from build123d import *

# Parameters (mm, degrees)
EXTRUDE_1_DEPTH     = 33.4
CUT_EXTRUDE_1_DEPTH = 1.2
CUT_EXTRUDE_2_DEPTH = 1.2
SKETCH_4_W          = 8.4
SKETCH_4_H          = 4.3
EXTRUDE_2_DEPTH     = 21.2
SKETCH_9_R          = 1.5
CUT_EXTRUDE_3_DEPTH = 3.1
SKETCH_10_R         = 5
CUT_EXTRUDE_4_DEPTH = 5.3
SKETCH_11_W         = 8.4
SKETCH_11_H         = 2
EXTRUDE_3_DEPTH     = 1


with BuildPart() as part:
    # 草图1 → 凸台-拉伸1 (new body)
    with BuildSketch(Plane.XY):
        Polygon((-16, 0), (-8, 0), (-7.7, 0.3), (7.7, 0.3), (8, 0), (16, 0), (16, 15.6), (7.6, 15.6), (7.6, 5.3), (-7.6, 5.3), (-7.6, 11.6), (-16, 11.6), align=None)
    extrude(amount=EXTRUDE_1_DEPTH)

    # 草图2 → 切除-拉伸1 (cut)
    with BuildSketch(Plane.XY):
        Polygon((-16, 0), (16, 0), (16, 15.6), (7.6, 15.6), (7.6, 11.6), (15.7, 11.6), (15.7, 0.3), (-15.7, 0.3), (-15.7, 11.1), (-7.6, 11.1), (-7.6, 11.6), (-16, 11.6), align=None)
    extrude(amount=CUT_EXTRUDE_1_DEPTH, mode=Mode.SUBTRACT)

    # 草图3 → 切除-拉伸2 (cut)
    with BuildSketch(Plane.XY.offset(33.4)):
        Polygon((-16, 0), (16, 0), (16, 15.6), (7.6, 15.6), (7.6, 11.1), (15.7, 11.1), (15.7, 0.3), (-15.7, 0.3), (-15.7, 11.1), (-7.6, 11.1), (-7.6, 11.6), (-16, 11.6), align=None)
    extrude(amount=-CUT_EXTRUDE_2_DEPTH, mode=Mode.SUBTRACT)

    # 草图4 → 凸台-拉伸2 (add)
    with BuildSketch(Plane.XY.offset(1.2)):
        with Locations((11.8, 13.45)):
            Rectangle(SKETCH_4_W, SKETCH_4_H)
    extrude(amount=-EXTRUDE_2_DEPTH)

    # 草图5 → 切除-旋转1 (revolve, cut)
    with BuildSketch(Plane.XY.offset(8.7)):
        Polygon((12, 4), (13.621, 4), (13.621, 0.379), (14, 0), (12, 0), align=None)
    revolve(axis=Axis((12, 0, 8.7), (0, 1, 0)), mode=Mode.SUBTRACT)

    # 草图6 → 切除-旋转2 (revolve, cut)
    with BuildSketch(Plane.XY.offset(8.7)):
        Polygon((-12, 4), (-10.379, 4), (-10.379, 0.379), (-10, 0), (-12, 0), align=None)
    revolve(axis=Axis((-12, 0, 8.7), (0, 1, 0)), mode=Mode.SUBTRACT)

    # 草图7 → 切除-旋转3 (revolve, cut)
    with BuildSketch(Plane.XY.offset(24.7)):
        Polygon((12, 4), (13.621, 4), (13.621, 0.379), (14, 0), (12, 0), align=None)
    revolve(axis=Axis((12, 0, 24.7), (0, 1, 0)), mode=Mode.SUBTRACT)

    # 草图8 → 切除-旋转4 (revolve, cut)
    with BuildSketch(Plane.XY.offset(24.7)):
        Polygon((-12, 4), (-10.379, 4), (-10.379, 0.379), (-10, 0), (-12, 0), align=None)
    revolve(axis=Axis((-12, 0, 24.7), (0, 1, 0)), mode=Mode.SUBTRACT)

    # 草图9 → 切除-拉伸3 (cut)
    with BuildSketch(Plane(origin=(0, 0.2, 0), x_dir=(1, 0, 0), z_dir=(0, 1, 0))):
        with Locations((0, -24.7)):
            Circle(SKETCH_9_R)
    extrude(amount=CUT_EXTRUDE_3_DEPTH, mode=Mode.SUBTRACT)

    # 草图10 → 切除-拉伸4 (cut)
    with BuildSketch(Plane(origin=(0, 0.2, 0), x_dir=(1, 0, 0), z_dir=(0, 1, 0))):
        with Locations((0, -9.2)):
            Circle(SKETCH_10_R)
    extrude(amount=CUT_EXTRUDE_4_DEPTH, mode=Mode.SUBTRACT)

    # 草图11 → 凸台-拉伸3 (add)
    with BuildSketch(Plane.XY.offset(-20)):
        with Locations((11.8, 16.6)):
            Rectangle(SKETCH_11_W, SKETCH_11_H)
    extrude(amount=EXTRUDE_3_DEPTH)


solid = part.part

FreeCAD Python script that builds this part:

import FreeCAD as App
import Part
import Sketcher
from FreeCAD import Vector
Q = App.Units.Quantity

doc = App.newDocument("Part")
body = doc.addObject("PartDesign::Body", "Body")

# Sketch on XY plane
sketch1 = doc.addObject("Sketcher::SketchObject", "Sketch")
body.addObject(sketch1)
sketch1.AttachmentSupport = (doc.XY_Plane, [""])
sketch1.MapMode = "FlatFace"
sketch1.addGeometry([
    Part.LineSegment(Vector(-16, 0, 0), Vector(-8, 0, 0)),  # 0
    Part.LineSegment(Vector(-8, 0, 0), Vector(-7.7, 0.3, 0)),  # 1
    Part.LineSegment(Vector(-7.7, 0.3, 0), Vector(7.7, 0.3, 0)),  # 2
    Part.LineSegment(Vector(7.7, 0.3, 0), Vector(8, 0, 0)),  # 3
    Part.LineSegment(Vector(8, 0, 0), Vector(16, 0, 0)),  # 4
    Part.LineSegment(Vector(16, 0, 0), Vector(16, 15.6, 0)),  # 5
    Part.LineSegment(Vector(16, 15.6, 0), Vector(7.6, 15.6, 0)),  # 6
    Part.LineSegment(Vector(7.6, 15.6, 0), Vector(7.6, 5.3, 0)),  # 7
    Part.LineSegment(Vector(7.6, 5.3, 0), Vector(-7.6, 5.3, 0)),  # 8
    Part.LineSegment(Vector(-7.6, 5.3, 0), Vector(-7.6, 11.6, 0)),  # 9
    Part.LineSegment(Vector(-7.6, 11.6, 0), Vector(-16, 11.6, 0)),  # 10
    Part.LineSegment(Vector(-16, 11.6, 0), Vector(-16, 0, 0)),  # 11
], False)
sketch1.addConstraint([
    Sketcher.Constraint("Coincident", 0, 2, 1, 1),
    Sketcher.Constraint("Coincident", 1, 2, 2, 1),
    Sketcher.Constraint("Coincident", 2, 2, 3, 1),
    Sketcher.Constraint("Coincident", 3, 2, 4, 1),
    Sketcher.Constraint("Coincident", 4, 2, 5, 1),
    Sketcher.Constraint("Coincident", 5, 2, 6, 1),
    Sketcher.Constraint("Coincident", 6, 2, 7, 1),
    Sketcher.Constraint("Coincident", 7, 2, 8, 1),
    Sketcher.Constraint("Coincident", 8, 2, 9, 1),
    Sketcher.Constraint("Coincident", 9, 2, 10, 1),
    Sketcher.Constraint("Coincident", 10, 2, 11, 1),
    Sketcher.Constraint("Coincident", 11, 2, 0, 1),
    Sketcher.Constraint("Horizontal", 0),
    Sketcher.Constraint("Horizontal", 2),
    Sketcher.Constraint("Horizontal", 4),
    Sketcher.Constraint("Vertical", 5),
    Sketcher.Constraint("Horizontal", 6),
    Sketcher.Constraint("Vertical", 7),
    Sketcher.Constraint("Horizontal", 8),
    Sketcher.Constraint("Vertical", 9),
    Sketcher.Constraint("Horizontal", 10),
    Sketcher.Constraint("Vertical", 11),
    Sketcher.Constraint("Symmetric", 0, 2, 3, 2, -1, 1),
    Sketcher.Constraint("Symmetric", 4, 2, 11, 2, -2),
    Sketcher.Constraint("Perpendicular", 1, 3),
    Sketcher.Constraint("Equal", 6, 10),
    Sketcher.Constraint("Equal", 1, 3),
    Sketcher.Constraint("DistanceX", 0, 1, 0, 2, Q("8 mm")),
    Sketcher.Constraint("DistanceX", 2, 1, 2, 2, Q("15.4 mm")),
    Sketcher.Constraint("DistanceX", 6, 2, 6, 1, Q("8.4 mm")),
    Sketcher.Constraint("DistanceX", 8, 2, 8, 1, Q("15.2 mm")),
    Sketcher.Constraint("DistanceY", 5, 1, 5, 2, Q("15.6 mm")),
    Sketcher.Constraint("DistanceY", 7, 2, 7, 1, Q("10.3 mm")),
    Sketcher.Constraint("DistanceY", 9, 1, 9, 2, Q("6.3 mm")),
])
pad1 = doc.addObject("PartDesign::Pad", "Pad")
body.addObject(pad1)
pad1.Profile = sketch1
pad1.Length = 33.4

# Sketch on XY plane
sketch2 = doc.addObject("Sketcher::SketchObject", "Sketch001")
body.addObject(sketch2)
sketch2.AttachmentSupport = (doc.XY_Plane, [""])
sketch2.MapMode = "FlatFace"
sketch2.addGeometry([
    Part.LineSegment(Vector(-16, 0, 0), Vector(16, 0, 0)),  # 0
    Part.LineSegment(Vector(16, 0, 0), Vector(16, 15.6, 0)),  # 1
    Part.LineSegment(Vector(16, 15.6, 0), Vector(7.6, 15.6, 0)),  # 2
    Part.LineSegment(Vector(7.6, 15.6, 0), Vector(7.6, 11.6, 0)),  # 3
    Part.LineSegment(Vector(7.6, 11.6, 0), Vector(15.7, 11.6, 0)),  # 4
    Part.LineSegment(Vector(15.7, 11.6, 0), Vector(15.7, 0.3, 0)),  # 5
    Part.LineSegment(Vector(15.7, 0.3, 0), Vector(-15.7, 0.3, 0)),  # 6
    Part.LineSegment(Vector(-15.7, 0.3, 0), Vector(-15.7, 11.1, 0)),  # 7
    Part.LineSegment(Vector(-15.7, 11.1, 0), Vector(-7.6, 11.1, 0)),  # 8
    Part.LineSegment(Vector(-7.6, 11.1, 0), Vector(-7.6, 11.6, 0)),  # 9
    Part.LineSegment(Vector(-7.6, 11.6, 0), Vector(-16, 11.6, 0)),  # 10
    Part.LineSegment(Vector(-16, 11.6, 0), Vector(-16, 0, 0)),  # 11
], False)
sketch2.addConstraint([
    Sketcher.Constraint("Coincident", 0, 2, 1, 1),
    Sketcher.Constraint("Coincident", 1, 2, 2, 1),
    Sketcher.Constraint("Coincident", 2, 2, 3, 1),
    Sketcher.Constraint("Coincident", 3, 2, 4, 1),
    Sketcher.Constraint("Coincident", 4, 2, 5, 1),
    Sketcher.Constraint("Coincident", 5, 2, 6, 1),
    Sketcher.Constraint("Coincident", 6, 2, 7, 1),
    Sketcher.Constraint("Coincident", 7, 2, 8, 1),
    Sketcher.Constraint("Coincident", 8, 2, 9, 1),
    Sketcher.Constraint("Coincident", 9, 2, 10, 1),
    Sketcher.Constraint("Coincident", 10, 2, 11, 1),
    Sketcher.Constraint("Coincident", 11, 2, 0, 1),
    Sketcher.Constraint("Horizontal", 0),
    Sketcher.Constraint("Vertical", 1),
    Sketcher.Constraint("Horizontal", 2),
    Sketcher.Constraint("Vertical", 3),
    Sketcher.Constraint("Horizontal", 4),
    Sketcher.Constraint("Vertical", 5),
    Sketcher.Constraint("Horizontal", 6),
    Sketcher.Constraint("Vertical", 7),
    Sketcher.Constraint("Horizontal", 8),
    Sketcher.Constraint("Vertical", 9),
    Sketcher.Constraint("Horizontal", 10),
    Sketcher.Constraint("Vertical", 11),
    Sketcher.Constraint("Symmetric", 0, 2, 11, 2, -1, 1),
    Sketcher.Constraint("Symmetric", 3, 2, 9, 2, -2),
    Sketcher.Constraint("Equal", 4, 8),
    Sketcher.Constraint("DistanceX", 0, 1, 0, 2, Q("32 mm")),
    Sketcher.Constraint("DistanceY", 3, 2, 3, 1, Q("4 mm")),
    Sketcher.Constraint("DistanceX", 2, 2, 2, 1, Q("8.4 mm")),
    Sketcher.Constraint("DistanceX", 4, 1, 4, 2, Q("8.1 mm")),
    Sketcher.Constraint("DistanceY", 1, 1, 1, 2, Q("15.6 mm")),
    Sketcher.Constraint("DistanceY", 5, 2, 5, 1, Q("11.3 mm")),
    Sketcher.Constraint("DistanceY", 7, 1, 7, 2, Q("10.8 mm")),
])
pocket1 = doc.addObject("PartDesign::Pocket", "Pocket")
body.addObject(pocket1)
pocket1.Profile = sketch2
pocket1.Length = 1.2
pocket1.Reversed = True

# Sketch on XY plane
sketch3 = doc.addObject("Sketcher::SketchObject", "Sketch002")
body.addObject(sketch3)
sketch3.AttachmentSupport = (doc.XY_Plane, [""])
sketch3.MapMode = "FlatFace"
sketch3.AttachmentOffset = App.Placement(Vector(0, 0, 33.4), App.Rotation())
sketch3.addGeometry([
    Part.LineSegment(Vector(-16, 0, 0), Vector(16, 0, 0)),  # 0
    Part.LineSegment(Vector(16, 0, 0), Vector(16, 15.6, 0)),  # 1
    Part.LineSegment(Vector(16, 15.6, 0), Vector(7.6, 15.6, 0)),  # 2
    Part.LineSegment(Vector(7.6, 15.6, 0), Vector(7.6, 11.1, 0)),  # 3
    Part.LineSegment(Vector(7.6, 11.1, 0), Vector(15.7, 11.1, 0)),  # 4
    Part.LineSegment(Vector(15.7, 11.1, 0), Vector(15.7, 0.3, 0)),  # 5
    Part.LineSegment(Vector(15.7, 0.3, 0), Vector(-15.7, 0.3, 0)),  # 6
    Part.LineSegment(Vector(-15.7, 0.3, 0), Vector(-15.7, 11.1, 0)),  # 7
    Part.LineSegment(Vector(-15.7, 11.1, 0), Vector(-7.6, 11.1, 0)),  # 8
    Part.LineSegment(Vector(-7.6, 11.1, 0), Vector(-7.6, 11.6, 0)),  # 9
    Part.LineSegment(Vector(-7.6, 11.6, 0), Vector(-16, 11.6, 0)),  # 10
    Part.LineSegment(Vector(-16, 11.6, 0), Vector(-16, 0, 0)),  # 11
], False)
sketch3.addConstraint([
    Sketcher.Constraint("Coincident", 0, 2, 1, 1),
    Sketcher.Constraint("Coincident", 1, 2, 2, 1),
    Sketcher.Constraint("Coincident", 2, 2, 3, 1),
    Sketcher.Constraint("Coincident", 3, 2, 4, 1),
    Sketcher.Constraint("Coincident", 4, 2, 5, 1),
    Sketcher.Constraint("Coincident", 5, 2, 6, 1),
    Sketcher.Constraint("Coincident", 6, 2, 7, 1),
    Sketcher.Constraint("Coincident", 7, 2, 8, 1),
    Sketcher.Constraint("Coincident", 8, 2, 9, 1),
    Sketcher.Constraint("Coincident", 9, 2, 10, 1),
    Sketcher.Constraint("Coincident", 10, 2, 11, 1),
    Sketcher.Constraint("Coincident", 11, 2, 0, 1),
    Sketcher.Constraint("Horizontal", 0),
    Sketcher.Constraint("Vertical", 1),
    Sketcher.Constraint("Horizontal", 2),
    Sketcher.Constraint("Vertical", 3),
    Sketcher.Constraint("Horizontal", 4),
    Sketcher.Constraint("Vertical", 5),
    Sketcher.Constraint("Horizontal", 6),
    Sketcher.Constraint("Vertical", 7),
    Sketcher.Constraint("Horizontal", 8),
    Sketcher.Constraint("Vertical", 9),
    Sketcher.Constraint("Horizontal", 10),
    Sketcher.Constraint("Vertical", 11),
    Sketcher.Constraint("Symmetric", 0, 2, 11, 2, -1, 1),
    Sketcher.Constraint("Symmetric", 4, 2, 7, 2, -2),
    Sketcher.Constraint("Equal", 4, 8),
    Sketcher.Constraint("DistanceX", 0, 1, 0, 2, Q("32 mm")),
    Sketcher.Constraint("DistanceX", 2, 2, 2, 1, Q("8.4 mm")),
    Sketcher.Constraint("DistanceX", 4, 1, 4, 2, Q("8.1 mm")),
    Sketcher.Constraint("DistanceY", 1, 1, 1, 2, Q("15.6 mm")),
    Sketcher.Constraint("DistanceY", 3, 2, 3, 1, Q("4.5 mm")),
    Sketcher.Constraint("DistanceY", 5, 2, 5, 1, Q("10.8 mm")),
    Sketcher.Constraint("DistanceY", 9, 1, 9, 2, Q("0.5 mm")),
])
pocket2 = doc.addObject("PartDesign::Pocket", "Pocket001")
body.addObject(pocket2)
pocket2.Profile = sketch3
pocket2.Length = 1.2

# Sketch on XY plane
sketch4 = doc.addObject("Sketcher::SketchObject", "Sketch003")
body.addObject(sketch4)
sketch4.AttachmentSupport = (doc.XY_Plane, [""])
sketch4.MapMode = "FlatFace"
sketch4.AttachmentOffset = App.Placement(Vector(0, 0, 1.2), App.Rotation())
sketch4.addGeometry([
    Part.LineSegment(Vector(7.6, 15.6, 0), Vector(7.6, 11.3, 0)),
    Part.LineSegment(Vector(7.6, 11.3, 0), Vector(16, 11.3, 0)),
    Part.LineSegment(Vector(16, 11.3, 0), Vector(16, 15.6, 0)),
    Part.LineSegment(Vector(16, 15.6, 0), Vector(7.6, 15.6, 0)),
], False)
sketch4.addConstraint([
    Sketcher.Constraint("Coincident", 0, 2, 1, 1),
    Sketcher.Constraint("Coincident", 1, 2, 2, 1),
    Sketcher.Constraint("Coincident", 2, 2, 3, 1),
    Sketcher.Constraint("Coincident", 3, 2, 0, 1),
    Sketcher.Constraint("Vertical", 0),
    Sketcher.Constraint("Horizontal", 1),
    Sketcher.Constraint("Vertical", 2),
    Sketcher.Constraint("Horizontal", 3),
    Sketcher.Constraint("DistanceX", 1, 1, 1, 2, Q("8.4 mm")),
    Sketcher.Constraint("DistanceY", 0, 2, 0, 1, Q("4.3 mm")),
    Sketcher.Constraint("DistanceX", -1, 1, 1, 2, Q("16 mm")),
    Sketcher.Constraint("DistanceY", -1, 1, 0, 2, Q("11.3 mm")),
])
pad2 = doc.addObject("PartDesign::Pad", "Pad001")
body.addObject(pad2)
pad2.Profile = sketch4
pad2.Length = 21.2
pad2.Reversed = True

# Sketch on XY plane
sketch5 = doc.addObject("Sketcher::SketchObject", "Sketch004")
body.addObject(sketch5)
sketch5.AttachmentSupport = (doc.XY_Plane, [""])
sketch5.MapMode = "FlatFace"
sketch5.AttachmentOffset = App.Placement(Vector(0, 0, 8.7), App.Rotation())
sketch5.addGeometry([
    Part.LineSegment(Vector(13.6, 4, 0), Vector(12, 4, 0)),  # 0
    Part.LineSegment(Vector(12, 4, 0), Vector(12, 0, 0)),  # 1
    Part.LineSegment(Vector(12, 0, 0), Vector(14, 0, 0)),  # 2
    Part.LineSegment(Vector(14, 0, 0), Vector(13.6, 0.4, 0)),  # 3
    Part.LineSegment(Vector(13.6, 0.4, 0), Vector(13.6, 4, 0)),  # 4
], False)
sketch5.addGeometry(Part.LineSegment(Vector(12, 0, 0), Vector(12, 4, 0)), True)  # axis
sketch5.addConstraint([
    Sketcher.Constraint("Coincident", 0, 2, 1, 1),
    Sketcher.Constraint("Coincident", 1, 2, 2, 1),
    Sketcher.Constraint("Coincident", 2, 2, 3, 1),
    Sketcher.Constraint("Coincident", 3, 2, 4, 1),
    Sketcher.Constraint("Coincident", 4, 2, 0, 1),
    Sketcher.Constraint("Horizontal", 0),
    Sketcher.Constraint("Vertical", 1),
    Sketcher.Constraint("Horizontal", 2),
    Sketcher.Constraint("Vertical", 4),
    Sketcher.Constraint("Vertical", 5),
    Sketcher.Constraint("Coincident", 5, 1, 1, 2),
    Sketcher.Constraint("PointOnObject", 1, 2, -1),
    Sketcher.Constraint("Horizontal", 4, 2, 5, 2),
    Sketcher.Constraint("DistanceX", 2, 1, 2, 2, Q("2 mm")),
    Sketcher.Constraint("DistanceY", 1, 2, 1, 1, Q("4 mm")),
    Sketcher.Constraint("Angle", 3, Q("135 deg")),
    Sketcher.Constraint("DistanceX", -1, 1, 0, 2, Q("12 mm")),
    Sketcher.Constraint("DistanceX", 0, 2, 0, 1, Q("1.621 mm")),
])
groove = doc.addObject("PartDesign::Groove", "Groove")
body.addObject(groove)
groove.Profile = sketch5
groove.ReferenceAxis = (sketch5, ["Axis0"])
groove.Angle = 360

# Sketch on XY plane
sketch6 = doc.addObject("Sketcher::SketchObject", "Sketch005")
body.addObject(sketch6)
sketch6.AttachmentSupport = (doc.XY_Plane, [""])
sketch6.MapMode = "FlatFace"
sketch6.AttachmentOffset = App.Placement(Vector(0, 0, 8.7), App.Rotation())
sketch6.addGeometry([
    Part.LineSegment(Vector(-10.4, 4, 0), Vector(-12, 4, 0)),  # 0
    Part.LineSegment(Vector(-12, 4, 0), Vector(-12, 0, 0)),  # 1
    Part.LineSegment(Vector(-12, 0, 0), Vector(-10, 0, 0)),  # 2
    Part.LineSegment(Vector(-10, 0, 0), Vector(-10.4, 0.4, 0)),  # 3
    Part.LineSegment(Vector(-10.4, 0.4, 0), Vector(-10.4, 4, 0)),  # 4
], False)
sketch6.addGeometry(Part.LineSegment(Vector(-12, 0, 0), Vector(-12, 4, 0)), True)  # axis
sketch6.addConstraint([
    Sketcher.Constraint("Coincident", 0, 2, 1, 1),
    Sketcher.Constraint("Coincident", 1, 2, 2, 1),
    Sketcher.Constraint("Coincident", 2, 2, 3, 1),
    Sketcher.Constraint("Coincident", 3, 2, 4, 1),
    Sketcher.Constraint("Coincident", 4, 2, 0, 1),
    Sketcher.Constraint("Horizontal", 0),
    Sketcher.Constraint("Vertical", 1),
    Sketcher.Constraint("Horizontal", 2),
    Sketcher.Constraint("Vertical", 4),
    Sketcher.Constraint("Vertical", 5),
    Sketcher.Constraint("Coincident", 5, 1, 1, 2),
    Sketcher.Constraint("PointOnObject", 1, 2, -1),
    Sketcher.Constraint("Horizontal", 4, 2, 5, 2),
    Sketcher.Constraint("DistanceX", 2, 1, 2, 2, Q("2 mm")),
    Sketcher.Constraint("DistanceY", 1, 2, 1, 1, Q("4 mm")),
    Sketcher.Constraint("Angle", 3, Q("135 deg")),
    Sketcher.Constraint("DistanceX", 0, 2, -1, 1, Q("12 mm")),
    Sketcher.Constraint("DistanceX", 0, 2, 0, 1, Q("1.621 mm")),
])
groove2 = doc.addObject("PartDesign::Groove", "Groove001")
body.addObject(groove2)
groove2.Profile = sketch6
groove2.ReferenceAxis = (sketch6, ["Axis0"])
groove2.Angle = 360

# Sketch on XY plane
sketch7 = doc.addObject("Sketcher::SketchObject", "Sketch006")
body.addObject(sketch7)
sketch7.AttachmentSupport = (doc.XY_Plane, [""])
sketch7.MapMode = "FlatFace"
sketch7.AttachmentOffset = App.Placement(Vector(0, 0, 24.7), App.Rotation())
sketch7.addGeometry([
    Part.LineSegment(Vector(13.6, 4, 0), Vector(12, 4, 0)),  # 0
    Part.LineSegment(Vector(12, 4, 0), Vector(12, 0, 0)),  # 1
    Part.LineSegment(Vector(12, 0, 0), Vector(14, 0, 0)),  # 2
    Part.LineSegment(Vector(14, 0, 0), Vector(13.6, 0.4, 0)),  # 3
    Part.LineSegment(Vector(13.6, 0.4, 0), Vector(13.6, 4, 0)),  # 4
], False)
sketch7.addGeometry(Part.LineSegment(Vector(12, 0, 0), Vector(12, 4, 0)), True)  # axis
sketch7.addConstraint([
    Sketcher.Constraint("Coincident", 0, 2, 1, 1),
    Sketcher.Constraint("Coincident", 1, 2, 2, 1),
    Sketcher.Constraint("Coincident", 2, 2, 3, 1),
    Sketcher.Constraint("Coincident", 3, 2, 4, 1),
    Sketcher.Constraint("Coincident", 4, 2, 0, 1),
    Sketcher.Constraint("Horizontal", 0),
    Sketcher.Constraint("Vertical", 1),
    Sketcher.Constraint("Horizontal", 2),
    Sketcher.Constraint("Vertical", 4),
    Sketcher.Constraint("Vertical", 5),
    Sketcher.Constraint("Coincident", 5, 1, 1, 2),
    Sketcher.Constraint("PointOnObject", 1, 2, -1),
    Sketcher.Constraint("Horizontal", 4, 2, 5, 2),
    Sketcher.Constraint("DistanceX", 2, 1, 2, 2, Q("2 mm")),
    Sketcher.Constraint("DistanceY", 1, 2, 1, 1, Q("4 mm")),
    Sketcher.Constraint("Angle", 3, Q("135 deg")),
    Sketcher.Constraint("DistanceX", -1, 1, 0, 2, Q("12 mm")),
    Sketcher.Constraint("DistanceX", 0, 2, 0, 1, Q("1.621 mm")),
])
groove3 = doc.addObject("PartDesign::Groove", "Groove002")
body.addObject(groove3)
groove3.Profile = sketch7
groove3.ReferenceAxis = (sketch7, ["Axis0"])
groove3.Angle = 360

# Sketch on XY plane
sketch8 = doc.addObject("Sketcher::SketchObject", "Sketch007")
body.addObject(sketch8)
sketch8.AttachmentSupport = (doc.XY_Plane, [""])
sketch8.MapMode = "FlatFace"
sketch8.AttachmentOffset = App.Placement(Vector(0, 0, 24.7), App.Rotation())
sketch8.addGeometry([
    Part.LineSegment(Vector(-10.4, 4, 0), Vector(-12, 4, 0)),  # 0
    Part.LineSegment(Vector(-12, 4, 0), Vector(-12, 0, 0)),  # 1
    Part.LineSegment(Vector(-12, 0, 0), Vector(-10, 0, 0)),  # 2
    Part.LineSegment(Vector(-10, 0, 0), Vector(-10.4, 0.4, 0)),  # 3
    Part.LineSegment(Vector(-10.4, 0.4, 0), Vector(-10.4, 4, 0)),  # 4
], False)
sketch8.addGeometry(Part.LineSegment(Vector(-12, 0, 0), Vector(-12, 4, 0)), True)  # axis
sketch8.addConstraint([
    Sketcher.Constraint("Coincident", 0, 2, 1, 1),
    Sketcher.Constraint("Coincident", 1, 2, 2, 1),
    Sketcher.Constraint("Coincident", 2, 2, 3, 1),
    Sketcher.Constraint("Coincident", 3, 2, 4, 1),
    Sketcher.Constraint("Coincident", 4, 2, 0, 1),
    Sketcher.Constraint("Horizontal", 0),
    Sketcher.Constraint("Vertical", 1),
    Sketcher.Constraint("Horizontal", 2),
    Sketcher.Constraint("Vertical", 4),
    Sketcher.Constraint("Vertical", 5),
    Sketcher.Constraint("Coincident", 5, 1, 1, 2),
    Sketcher.Constraint("PointOnObject", 1, 2, -1),
    Sketcher.Constraint("Horizontal", 4, 2, 5, 2),
    Sketcher.Constraint("DistanceX", 2, 1, 2, 2, Q("2 mm")),
    Sketcher.Constraint("DistanceY", 1, 2, 1, 1, Q("4 mm")),
    Sketcher.Constraint("Angle", 3, Q("135 deg")),
    Sketcher.Constraint("DistanceX", 0, 2, -1, 1, Q("12 mm")),
    Sketcher.Constraint("DistanceX", 0, 2, 0, 1, Q("1.621 mm")),
])
groove4 = doc.addObject("PartDesign::Groove", "Groove003")
body.addObject(groove4)
groove4.Profile = sketch8
groove4.ReferenceAxis = (sketch8, ["Axis0"])
groove4.Angle = 360

# Sketch on XZ plane
sketch9 = doc.addObject("Sketcher::SketchObject", "Sketch008")
body.addObject(sketch9)
sketch9.AttachmentSupport = (doc.XZ_Plane, [""])
sketch9.MapMode = "FlatFace"
sketch9.AttachmentOffset = App.Placement(Vector(0, 0, -0.2), App.Rotation())
sketch9.addGeometry(Part.Circle(Vector(0, 24.7, 0), Vector(0, 0, 1), 1.5), False)
sketch9.addConstraint([
    Sketcher.Constraint("PointOnObject", 0, 3, -2),
    Sketcher.Constraint("Diameter", 0, Q("3 mm")),
    Sketcher.Constraint("DistanceY", -1, 1, 0, 3, Q("24.7 mm")),
])
pocket3 = doc.addObject("PartDesign::Pocket", "Pocket002")
body.addObject(pocket3)
pocket3.Profile = sketch9
pocket3.Length = 3.1

# Sketch on XZ plane
sketch10 = doc.addObject("Sketcher::SketchObject", "Sketch009")
body.addObject(sketch10)
sketch10.AttachmentSupport = (doc.XZ_Plane, [""])
sketch10.MapMode = "FlatFace"
sketch10.AttachmentOffset = App.Placement(Vector(0, 0, -0.2), App.Rotation())
sketch10.addGeometry(Part.Circle(Vector(0, 9, 0), Vector(0, 0, 1), 5), False)
sketch10.addConstraint([
    Sketcher.Constraint("PointOnObject", 0, 3, -2),
    Sketcher.Constraint("Diameter", 0, Q("10 mm")),
    Sketcher.Constraint("DistanceY", -1, 1, 0, 3, Q("9.2 mm")),
])
pocket4 = doc.addObject("PartDesign::Pocket", "Pocket003")
body.addObject(pocket4)
pocket4.Profile = sketch10
pocket4.Length = 5.3

# Sketch on XY plane
sketch11 = doc.addObject("Sketcher::SketchObject", "Sketch010")
body.addObject(sketch11)
sketch11.AttachmentSupport = (doc.XY_Plane, [""])
sketch11.MapMode = "FlatFace"
sketch11.AttachmentOffset = App.Placement(Vector(0, 0, -20), App.Rotation())
sketch11.addGeometry([
    Part.LineSegment(Vector(7.6, 17.6, 0), Vector(7.6, 15.6, 0)),
    Part.LineSegment(Vector(7.6, 15.6, 0), Vector(16, 15.6, 0)),
    Part.LineSegment(Vector(16, 15.6, 0), Vector(16, 17.6, 0)),
    Part.LineSegment(Vector(16, 17.6, 0), Vector(7.6, 17.6, 0)),
], False)
sketch11.addConstraint([
    Sketcher.Constraint("Coincident", 0, 2, 1, 1),
    Sketcher.Constraint("Coincident", 1, 2, 2, 1),
    Sketcher.Constraint("Coincident", 2, 2, 3, 1),
    Sketcher.Constraint("Coincident", 3, 2, 0, 1),
    Sketcher.Constraint("Vertical", 0),
    Sketcher.Constraint("Horizontal", 1),
    Sketcher.Constraint("Vertical", 2),
    Sketcher.Constraint("Horizontal", 3),
    Sketcher.Constraint("DistanceY", 0, 2, 0, 1, Q("2 mm")),
    Sketcher.Constraint("DistanceX", 1, 1, 1, 2, Q("8.4 mm")),
    Sketcher.Constraint("DistanceX", -1, 1, 1, 2, Q("16 mm")),
    Sketcher.Constraint("DistanceY", -1, 1, 0, 2, Q("15.6 mm")),
])
pad3 = doc.addObject("PartDesign::Pad", "Pad002")
body.addObject(pad3)
pad3.Profile = sketch11
pad3.Length = 1

doc.recompute()
